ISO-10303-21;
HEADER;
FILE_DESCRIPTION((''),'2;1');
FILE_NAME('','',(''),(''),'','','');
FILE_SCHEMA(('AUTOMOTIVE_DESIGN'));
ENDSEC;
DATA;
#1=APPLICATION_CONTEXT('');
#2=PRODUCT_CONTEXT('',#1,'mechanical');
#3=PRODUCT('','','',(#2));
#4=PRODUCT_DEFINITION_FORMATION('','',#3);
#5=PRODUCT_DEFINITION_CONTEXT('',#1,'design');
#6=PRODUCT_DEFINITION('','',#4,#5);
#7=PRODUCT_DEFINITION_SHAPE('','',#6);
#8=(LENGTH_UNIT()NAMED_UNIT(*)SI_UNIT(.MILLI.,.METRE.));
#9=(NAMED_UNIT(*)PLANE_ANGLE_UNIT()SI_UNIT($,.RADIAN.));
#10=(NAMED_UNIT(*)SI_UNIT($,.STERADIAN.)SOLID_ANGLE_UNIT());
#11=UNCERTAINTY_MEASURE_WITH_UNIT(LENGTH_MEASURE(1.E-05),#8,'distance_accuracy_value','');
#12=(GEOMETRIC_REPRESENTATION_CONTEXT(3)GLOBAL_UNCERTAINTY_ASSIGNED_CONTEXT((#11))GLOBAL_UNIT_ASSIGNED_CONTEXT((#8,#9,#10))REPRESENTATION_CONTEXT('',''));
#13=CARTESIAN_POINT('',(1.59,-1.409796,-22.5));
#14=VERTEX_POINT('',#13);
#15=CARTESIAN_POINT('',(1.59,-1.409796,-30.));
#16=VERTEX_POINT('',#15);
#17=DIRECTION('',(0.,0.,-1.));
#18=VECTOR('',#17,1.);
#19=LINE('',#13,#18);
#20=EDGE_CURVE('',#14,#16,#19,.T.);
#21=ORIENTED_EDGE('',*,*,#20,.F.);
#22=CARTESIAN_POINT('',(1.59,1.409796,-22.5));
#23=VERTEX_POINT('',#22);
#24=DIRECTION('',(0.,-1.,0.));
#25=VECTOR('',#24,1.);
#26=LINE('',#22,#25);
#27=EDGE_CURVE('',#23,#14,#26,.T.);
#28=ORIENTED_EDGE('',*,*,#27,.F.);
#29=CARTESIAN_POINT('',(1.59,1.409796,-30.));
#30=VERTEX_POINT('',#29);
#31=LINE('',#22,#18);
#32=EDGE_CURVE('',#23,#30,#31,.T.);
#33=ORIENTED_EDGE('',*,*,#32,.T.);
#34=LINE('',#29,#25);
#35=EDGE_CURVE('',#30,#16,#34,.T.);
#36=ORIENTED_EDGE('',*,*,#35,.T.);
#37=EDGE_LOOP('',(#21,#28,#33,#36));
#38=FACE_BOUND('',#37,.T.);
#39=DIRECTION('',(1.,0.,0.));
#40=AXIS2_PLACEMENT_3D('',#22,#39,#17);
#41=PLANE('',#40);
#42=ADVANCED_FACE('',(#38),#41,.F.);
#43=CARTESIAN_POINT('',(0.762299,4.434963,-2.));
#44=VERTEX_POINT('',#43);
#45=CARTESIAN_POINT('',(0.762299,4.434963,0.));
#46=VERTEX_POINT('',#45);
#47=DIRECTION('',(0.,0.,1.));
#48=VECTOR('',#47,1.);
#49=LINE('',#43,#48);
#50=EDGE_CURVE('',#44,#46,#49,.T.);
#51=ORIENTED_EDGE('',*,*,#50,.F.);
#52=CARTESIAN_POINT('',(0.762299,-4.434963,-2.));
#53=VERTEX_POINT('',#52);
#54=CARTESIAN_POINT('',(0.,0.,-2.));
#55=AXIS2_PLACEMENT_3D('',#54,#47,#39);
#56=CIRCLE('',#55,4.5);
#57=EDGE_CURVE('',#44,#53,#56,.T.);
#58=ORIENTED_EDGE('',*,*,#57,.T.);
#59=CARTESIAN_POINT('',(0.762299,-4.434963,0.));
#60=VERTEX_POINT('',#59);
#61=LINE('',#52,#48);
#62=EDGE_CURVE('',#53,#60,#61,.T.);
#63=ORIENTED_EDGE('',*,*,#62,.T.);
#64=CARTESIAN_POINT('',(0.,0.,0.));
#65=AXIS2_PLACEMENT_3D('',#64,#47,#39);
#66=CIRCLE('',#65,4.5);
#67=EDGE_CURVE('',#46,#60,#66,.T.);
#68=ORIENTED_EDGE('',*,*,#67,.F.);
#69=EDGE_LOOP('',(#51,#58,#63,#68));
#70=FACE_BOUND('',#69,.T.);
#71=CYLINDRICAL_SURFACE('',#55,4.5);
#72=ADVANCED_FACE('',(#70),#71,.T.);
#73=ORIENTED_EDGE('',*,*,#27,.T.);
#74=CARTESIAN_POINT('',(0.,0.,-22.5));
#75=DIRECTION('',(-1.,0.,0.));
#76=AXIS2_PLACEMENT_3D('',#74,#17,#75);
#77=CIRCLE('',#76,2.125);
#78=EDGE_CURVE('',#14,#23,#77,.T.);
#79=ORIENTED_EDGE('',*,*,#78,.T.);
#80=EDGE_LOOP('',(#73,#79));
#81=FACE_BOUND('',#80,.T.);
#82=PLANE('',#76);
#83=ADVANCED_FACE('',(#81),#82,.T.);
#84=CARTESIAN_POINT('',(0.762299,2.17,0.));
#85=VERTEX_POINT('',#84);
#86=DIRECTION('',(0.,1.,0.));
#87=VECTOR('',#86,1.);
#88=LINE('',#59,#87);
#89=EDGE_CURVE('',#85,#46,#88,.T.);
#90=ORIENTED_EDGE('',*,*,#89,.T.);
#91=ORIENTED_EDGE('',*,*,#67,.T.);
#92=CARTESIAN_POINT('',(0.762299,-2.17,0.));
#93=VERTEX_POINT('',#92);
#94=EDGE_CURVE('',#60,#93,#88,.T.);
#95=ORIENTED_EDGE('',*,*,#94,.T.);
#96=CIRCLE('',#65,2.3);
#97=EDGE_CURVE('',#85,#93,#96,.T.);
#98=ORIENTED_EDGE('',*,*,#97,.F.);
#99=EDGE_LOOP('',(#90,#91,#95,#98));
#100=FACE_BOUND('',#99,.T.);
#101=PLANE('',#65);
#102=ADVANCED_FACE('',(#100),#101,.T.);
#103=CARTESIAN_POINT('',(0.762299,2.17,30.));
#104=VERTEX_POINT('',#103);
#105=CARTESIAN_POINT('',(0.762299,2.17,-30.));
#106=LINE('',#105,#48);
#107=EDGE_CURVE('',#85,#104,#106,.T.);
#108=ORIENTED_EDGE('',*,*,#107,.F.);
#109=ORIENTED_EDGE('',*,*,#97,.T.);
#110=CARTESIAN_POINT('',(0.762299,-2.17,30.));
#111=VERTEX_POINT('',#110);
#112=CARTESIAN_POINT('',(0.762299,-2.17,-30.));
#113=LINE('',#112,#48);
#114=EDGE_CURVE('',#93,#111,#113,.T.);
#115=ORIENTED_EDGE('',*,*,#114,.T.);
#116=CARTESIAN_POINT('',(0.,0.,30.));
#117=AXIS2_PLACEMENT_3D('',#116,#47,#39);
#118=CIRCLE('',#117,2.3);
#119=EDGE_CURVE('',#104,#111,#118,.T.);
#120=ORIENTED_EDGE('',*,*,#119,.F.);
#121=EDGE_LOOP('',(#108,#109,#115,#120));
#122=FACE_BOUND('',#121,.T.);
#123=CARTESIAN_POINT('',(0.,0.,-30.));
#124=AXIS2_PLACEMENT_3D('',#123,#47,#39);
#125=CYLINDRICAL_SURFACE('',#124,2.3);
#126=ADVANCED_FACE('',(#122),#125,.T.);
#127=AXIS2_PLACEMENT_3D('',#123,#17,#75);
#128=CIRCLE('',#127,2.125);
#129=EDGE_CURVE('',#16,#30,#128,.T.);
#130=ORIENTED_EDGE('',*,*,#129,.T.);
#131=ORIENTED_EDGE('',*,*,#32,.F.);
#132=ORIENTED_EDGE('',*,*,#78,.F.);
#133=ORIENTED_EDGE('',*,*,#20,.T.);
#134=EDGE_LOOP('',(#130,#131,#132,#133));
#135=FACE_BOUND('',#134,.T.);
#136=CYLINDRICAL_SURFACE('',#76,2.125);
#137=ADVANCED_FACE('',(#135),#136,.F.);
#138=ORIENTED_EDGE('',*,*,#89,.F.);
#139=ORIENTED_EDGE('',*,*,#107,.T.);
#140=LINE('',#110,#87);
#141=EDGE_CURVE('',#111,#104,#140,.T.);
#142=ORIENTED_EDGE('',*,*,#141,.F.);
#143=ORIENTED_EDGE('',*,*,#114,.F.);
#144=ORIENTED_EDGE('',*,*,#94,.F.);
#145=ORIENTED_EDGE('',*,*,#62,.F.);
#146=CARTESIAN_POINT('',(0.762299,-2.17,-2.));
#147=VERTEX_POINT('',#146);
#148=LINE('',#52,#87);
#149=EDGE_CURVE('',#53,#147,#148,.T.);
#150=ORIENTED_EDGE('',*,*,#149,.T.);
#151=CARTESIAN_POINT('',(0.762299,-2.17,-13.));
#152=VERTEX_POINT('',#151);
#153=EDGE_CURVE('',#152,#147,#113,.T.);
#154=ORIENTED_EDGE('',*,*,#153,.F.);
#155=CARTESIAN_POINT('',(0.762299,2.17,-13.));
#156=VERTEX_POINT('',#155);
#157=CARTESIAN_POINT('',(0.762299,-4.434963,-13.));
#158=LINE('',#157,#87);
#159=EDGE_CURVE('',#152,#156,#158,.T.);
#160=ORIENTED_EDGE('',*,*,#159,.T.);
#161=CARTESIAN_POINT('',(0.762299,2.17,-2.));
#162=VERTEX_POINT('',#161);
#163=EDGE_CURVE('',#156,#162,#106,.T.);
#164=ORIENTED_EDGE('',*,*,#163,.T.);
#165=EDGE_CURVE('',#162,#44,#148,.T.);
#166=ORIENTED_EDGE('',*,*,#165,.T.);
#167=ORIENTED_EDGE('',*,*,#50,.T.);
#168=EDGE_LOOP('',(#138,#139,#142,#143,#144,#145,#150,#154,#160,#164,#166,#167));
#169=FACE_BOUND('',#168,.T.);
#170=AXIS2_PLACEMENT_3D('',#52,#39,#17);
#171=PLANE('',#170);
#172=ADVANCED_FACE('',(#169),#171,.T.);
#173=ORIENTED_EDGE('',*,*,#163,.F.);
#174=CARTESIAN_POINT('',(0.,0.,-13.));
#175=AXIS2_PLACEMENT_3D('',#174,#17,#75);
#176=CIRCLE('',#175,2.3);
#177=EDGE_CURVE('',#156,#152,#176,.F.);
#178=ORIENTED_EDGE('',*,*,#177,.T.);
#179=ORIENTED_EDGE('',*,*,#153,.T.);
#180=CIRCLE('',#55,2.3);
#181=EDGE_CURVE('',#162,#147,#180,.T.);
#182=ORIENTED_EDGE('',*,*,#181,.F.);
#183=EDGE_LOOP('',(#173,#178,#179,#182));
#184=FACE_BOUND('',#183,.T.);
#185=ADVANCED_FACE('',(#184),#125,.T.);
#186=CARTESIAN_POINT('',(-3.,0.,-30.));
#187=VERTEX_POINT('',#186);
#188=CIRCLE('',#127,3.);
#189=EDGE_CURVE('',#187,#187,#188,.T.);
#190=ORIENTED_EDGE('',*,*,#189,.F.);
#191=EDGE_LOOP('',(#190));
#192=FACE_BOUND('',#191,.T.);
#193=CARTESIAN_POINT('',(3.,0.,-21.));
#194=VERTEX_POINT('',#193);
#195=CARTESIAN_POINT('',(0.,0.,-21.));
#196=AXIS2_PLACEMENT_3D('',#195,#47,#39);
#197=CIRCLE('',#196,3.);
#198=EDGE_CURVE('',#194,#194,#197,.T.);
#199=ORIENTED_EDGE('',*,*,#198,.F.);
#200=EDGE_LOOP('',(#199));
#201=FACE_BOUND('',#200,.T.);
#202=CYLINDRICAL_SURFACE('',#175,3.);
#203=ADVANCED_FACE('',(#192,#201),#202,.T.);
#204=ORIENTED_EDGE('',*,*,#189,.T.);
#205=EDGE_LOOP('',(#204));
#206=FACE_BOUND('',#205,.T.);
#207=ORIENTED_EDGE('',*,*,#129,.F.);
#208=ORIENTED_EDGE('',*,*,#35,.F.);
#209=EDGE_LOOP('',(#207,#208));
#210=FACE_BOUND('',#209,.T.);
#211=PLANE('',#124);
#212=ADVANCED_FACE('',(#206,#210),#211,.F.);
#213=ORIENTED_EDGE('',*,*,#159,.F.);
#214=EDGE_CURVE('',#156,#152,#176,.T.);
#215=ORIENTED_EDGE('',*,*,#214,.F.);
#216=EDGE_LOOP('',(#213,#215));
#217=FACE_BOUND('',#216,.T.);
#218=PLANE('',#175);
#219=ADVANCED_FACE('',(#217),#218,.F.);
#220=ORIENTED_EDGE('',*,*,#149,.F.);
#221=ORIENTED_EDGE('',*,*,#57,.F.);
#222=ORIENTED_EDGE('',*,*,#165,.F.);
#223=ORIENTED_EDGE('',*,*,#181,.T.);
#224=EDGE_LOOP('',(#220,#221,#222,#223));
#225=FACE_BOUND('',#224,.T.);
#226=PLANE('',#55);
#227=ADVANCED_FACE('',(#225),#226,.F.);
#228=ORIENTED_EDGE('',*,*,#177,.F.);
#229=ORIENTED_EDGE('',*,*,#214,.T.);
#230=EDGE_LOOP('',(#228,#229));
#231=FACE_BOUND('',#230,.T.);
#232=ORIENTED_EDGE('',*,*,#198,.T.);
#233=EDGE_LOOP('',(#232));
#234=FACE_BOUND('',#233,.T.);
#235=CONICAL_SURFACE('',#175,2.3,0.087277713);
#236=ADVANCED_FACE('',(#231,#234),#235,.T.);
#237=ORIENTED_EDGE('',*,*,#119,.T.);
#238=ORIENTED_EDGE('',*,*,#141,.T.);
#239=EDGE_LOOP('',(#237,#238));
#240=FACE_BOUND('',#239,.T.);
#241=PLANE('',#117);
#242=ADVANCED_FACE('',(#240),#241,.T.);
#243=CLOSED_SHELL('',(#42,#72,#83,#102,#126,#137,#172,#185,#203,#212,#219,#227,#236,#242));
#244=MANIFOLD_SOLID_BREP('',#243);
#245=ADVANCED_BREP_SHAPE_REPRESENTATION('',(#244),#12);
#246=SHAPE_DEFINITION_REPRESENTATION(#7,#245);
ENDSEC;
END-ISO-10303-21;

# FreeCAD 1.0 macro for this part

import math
import FreeCAD as App
import Part
import Sketcher

V = App.Vector
Q = App.Units.Quantity


def add_polygon(sketch, points):
    """Adds a closed chain of lines whose ends are joined by coincident constraints."""
    first, n = sketch.GeometryCount, len(points)
    for a, b in zip(points, points[1:] + points[:1]):
        sketch.addGeometry(Part.LineSegment(App.Vector(*a, 0), App.Vector(*b, 0)), False)
    for i in range(n):
        sketch.addConstraint(Sketcher.Constraint("Coincident", first + i, 2, first + (i + 1) % n, 1))

doc = App.newDocument("Part")
params = doc.addObject("Spreadsheet::Sheet", "Params")
for row, (alias, value) in enumerate([
    ("sketch1_radius", "4.5 mm"),
    ("pad1_length", "2 mm"),
    ("sketch2_radius", "2.3 mm"),
    ("sketch2_height", "4.34 mm"),
    ("pad2_length", "30 mm"),
    ("pad2_length2", "30 mm"),
    ("sketch3_diameter", "6 mm"),
    ("pad3_length", "17 mm"),
    ("pocket1_length", "7.5 mm"),
    ("sketch5_height", "8 mm"),
    ("sketch5_width", "0.7 mm"),
    ("groove_angle", "360 deg"),
], start=1):
    params.set(f"A{row}", alias)
    params.set(f"B{row}", "=" + value)
    params.setAlias(f"B{row}", alias)

body = doc.addObject("PartDesign::Body", "Body")

sketch1 = body.newObject("Sketcher::SketchObject", "Sketch")
sketch1.AttachmentSupport = (doc.getObject("XY_Plane"), [""])
sketch1.MapMode = "FlatFace"
sketch1.addGeometry([
    Part.LineSegment(V(0.762299, -4.434963, 0), V(0.762299, 4.434963, 0)),
    Part.ArcOfCircle(Part.Circle(V(0, 0, 0), V(0, 0, 1), 4.5), math.radians(80.247075), math.radians(279.752925)),
], False)
sketch1.addConstraint([
    Sketcher.Constraint("Coincident", 0, 1, 1, 2),
    Sketcher.Constraint("Coincident", 1, 1, 0, 2),
    Sketcher.Constraint("Vertical", 0),
    Sketcher.Constraint("Coincident", 1, 3, -1, 1),
    Sketcher.Constraint("Radius", 1, Q("4.5 mm")),
    Sketcher.Constraint("DistanceX", -1, 1, 0, 1, Q("0.762299 mm")),
])
sketch1.setExpression("Constraints[4]", "Params.sketch1_radius")
pad1 = body.newObject("PartDesign::Pad", "Pad")
pad1.Profile = sketch1
pad1.setExpression("Length", "Params.pad1_length")
pad1.Reversed = True

sketch2 = body.newObject("Sketcher::SketchObject", "Sketch001")
sketch2.AttachmentSupport = (doc.getObject("XY_Plane"), [""])
sketch2.MapMode = "FlatFace"
sketch2.addGeometry([
    Part.LineSegment(V(0.762299, -2.17, 0), V(0.762299, 2.17, 0)),
    Part.ArcOfCircle(Part.Circle(V(0, 0, 0), V(0, 0, 1), 2.3), math.radians(70.644138), math.radians(289.355862)),
], False)
sketch2.addConstraint([
    Sketcher.Constraint("Coincident", 0, 1, 1, 2),
    Sketcher.Constraint("Coincident", 1, 1, 0, 2),
    Sketcher.Constraint("Vertical", 0),
    Sketcher.Constraint("Coincident", 1, 3, -1, 1),
    Sketcher.Constraint("Radius", 1, Q("2.3 mm")),
    Sketcher.Constraint("DistanceY", 0, 1, 0, 2, Q("4.34 mm")),
])
sketch2.setExpression("Constraints[4]", "Params.sketch2_radius")
sketch2.setExpression("Constraints[5]", "Params.sketch2_height")
pad2 = body.newObject("PartDesign::Pad", "Pad001")
pad2.Profile = sketch2
pad2.Type = "TwoLengths"
pad2.setExpression("Length", "Params.pad2_length")
pad2.setExpression("Length2", "Params.pad2_length2")

sketch3 = body.newObject("Sketcher::SketchObject", "Sketch002")
sketch3.AttachmentSupport = (doc.getObject("XY_Plane"), [""])
sketch3.MapMode = "FlatFace"
sketch3.AttachmentOffset = App.Placement(V(0, 0, -30), App.Rotation())
sketch3.addGeometry(Part.Circle(V(0, 0, 0), V(0, 0, 1), 3), False)
sketch3.addConstraint([
    Sketcher.Constraint("Coincident", 0, 3, -1, 1),
    Sketcher.Constraint("Diameter", 0, Q("6 mm")),
])
sketch3.setExpression("Constraints[1]", "Params.sketch3_diameter")
pad3 = body.newObject("PartDesign::Pad", "Pad002")
pad3.Profile = sketch3
pad3.setExpression("Length", "Params.pad3_length")

sketch4 = body.newObject("Sketcher::SketchObject", "Sketch003")
sketch4.AttachmentSupport = (doc.getObject("XY_Plane"), [""])
sketch4.MapMode = "FlatFace"
sketch4.AttachmentOffset = App.Placement(V(0, 0, -30), App.Rotation())
sketch4.addGeometry([
    Part.LineSegment(V(1.59, 1.409796, 0), V(1.59, -1.409796, 0)),
    Part.ArcOfCircle(Part.Circle(V(0, 0, 0), V(0, 0, 1), 2.125), math.radians(41.562256), math.radians(318.437744)),
], False)
sketch4.addConstraint([
    Sketcher.Constraint("Coincident", 0, 1, 1, 1),
    Sketcher.Constraint("Coincident", 1, 2, 0, 2),
    Sketcher.Constraint("Vertical", 0),
    Sketcher.Constraint("Coincident", 1, 3, -1, 1),
    Sketcher.Constraint("Radius", 1, Q("2.125 mm")),
    Sketcher.Constraint("DistanceX", -1, 1, 0, 1, Q("1.59 mm")),
])
pocket1 = body.newObject("PartDesign::Pocket", "Pocket")
pocket1.Profile = sketch4
pocket1.setExpression("Length", "Params.pocket1_length")
pocket1.Reversed = True

sketch5 = body.newObject("Sketcher::SketchObject", "Sketch004")
sketch5.AttachmentSupport = (doc.getObject("YZ_Plane"), [""])
sketch5.MapMode = "FlatFace"
add_polygon(sketch5, [(3, -21), (3, -13), (2.3, -13)])
sketch5.addConstraint([
    Sketcher.Constraint("Vertical", 0),
    Sketcher.Constraint("Horizontal", 1),
    Sketcher.Constraint("DistanceY", 0, 1, 0, 2, Q("8 mm")),
    Sketcher.Constraint("DistanceX", 1, 2, 1, 1, Q("0.7 mm")),
    Sketcher.Constraint("DistanceX", -1, 1, 0, 2, Q("3 mm")),
    Sketcher.Constraint("DistanceY", 0, 2, -1, 1, Q("13 mm")),
])
sketch5.setExpression("Constraints[5]", "Params.sketch5_height")
sketch5.setExpression("Constraints[6]", "Params.sketch5_width")
groove = body.newObject("PartDesign::Groove", "Groove")
groove.Profile = sketch5
groove.ReferenceAxis = (sketch5, ["V_Axis"])
groove.setExpression("Angle", "Params.groove_angle")

doc.recompute()
